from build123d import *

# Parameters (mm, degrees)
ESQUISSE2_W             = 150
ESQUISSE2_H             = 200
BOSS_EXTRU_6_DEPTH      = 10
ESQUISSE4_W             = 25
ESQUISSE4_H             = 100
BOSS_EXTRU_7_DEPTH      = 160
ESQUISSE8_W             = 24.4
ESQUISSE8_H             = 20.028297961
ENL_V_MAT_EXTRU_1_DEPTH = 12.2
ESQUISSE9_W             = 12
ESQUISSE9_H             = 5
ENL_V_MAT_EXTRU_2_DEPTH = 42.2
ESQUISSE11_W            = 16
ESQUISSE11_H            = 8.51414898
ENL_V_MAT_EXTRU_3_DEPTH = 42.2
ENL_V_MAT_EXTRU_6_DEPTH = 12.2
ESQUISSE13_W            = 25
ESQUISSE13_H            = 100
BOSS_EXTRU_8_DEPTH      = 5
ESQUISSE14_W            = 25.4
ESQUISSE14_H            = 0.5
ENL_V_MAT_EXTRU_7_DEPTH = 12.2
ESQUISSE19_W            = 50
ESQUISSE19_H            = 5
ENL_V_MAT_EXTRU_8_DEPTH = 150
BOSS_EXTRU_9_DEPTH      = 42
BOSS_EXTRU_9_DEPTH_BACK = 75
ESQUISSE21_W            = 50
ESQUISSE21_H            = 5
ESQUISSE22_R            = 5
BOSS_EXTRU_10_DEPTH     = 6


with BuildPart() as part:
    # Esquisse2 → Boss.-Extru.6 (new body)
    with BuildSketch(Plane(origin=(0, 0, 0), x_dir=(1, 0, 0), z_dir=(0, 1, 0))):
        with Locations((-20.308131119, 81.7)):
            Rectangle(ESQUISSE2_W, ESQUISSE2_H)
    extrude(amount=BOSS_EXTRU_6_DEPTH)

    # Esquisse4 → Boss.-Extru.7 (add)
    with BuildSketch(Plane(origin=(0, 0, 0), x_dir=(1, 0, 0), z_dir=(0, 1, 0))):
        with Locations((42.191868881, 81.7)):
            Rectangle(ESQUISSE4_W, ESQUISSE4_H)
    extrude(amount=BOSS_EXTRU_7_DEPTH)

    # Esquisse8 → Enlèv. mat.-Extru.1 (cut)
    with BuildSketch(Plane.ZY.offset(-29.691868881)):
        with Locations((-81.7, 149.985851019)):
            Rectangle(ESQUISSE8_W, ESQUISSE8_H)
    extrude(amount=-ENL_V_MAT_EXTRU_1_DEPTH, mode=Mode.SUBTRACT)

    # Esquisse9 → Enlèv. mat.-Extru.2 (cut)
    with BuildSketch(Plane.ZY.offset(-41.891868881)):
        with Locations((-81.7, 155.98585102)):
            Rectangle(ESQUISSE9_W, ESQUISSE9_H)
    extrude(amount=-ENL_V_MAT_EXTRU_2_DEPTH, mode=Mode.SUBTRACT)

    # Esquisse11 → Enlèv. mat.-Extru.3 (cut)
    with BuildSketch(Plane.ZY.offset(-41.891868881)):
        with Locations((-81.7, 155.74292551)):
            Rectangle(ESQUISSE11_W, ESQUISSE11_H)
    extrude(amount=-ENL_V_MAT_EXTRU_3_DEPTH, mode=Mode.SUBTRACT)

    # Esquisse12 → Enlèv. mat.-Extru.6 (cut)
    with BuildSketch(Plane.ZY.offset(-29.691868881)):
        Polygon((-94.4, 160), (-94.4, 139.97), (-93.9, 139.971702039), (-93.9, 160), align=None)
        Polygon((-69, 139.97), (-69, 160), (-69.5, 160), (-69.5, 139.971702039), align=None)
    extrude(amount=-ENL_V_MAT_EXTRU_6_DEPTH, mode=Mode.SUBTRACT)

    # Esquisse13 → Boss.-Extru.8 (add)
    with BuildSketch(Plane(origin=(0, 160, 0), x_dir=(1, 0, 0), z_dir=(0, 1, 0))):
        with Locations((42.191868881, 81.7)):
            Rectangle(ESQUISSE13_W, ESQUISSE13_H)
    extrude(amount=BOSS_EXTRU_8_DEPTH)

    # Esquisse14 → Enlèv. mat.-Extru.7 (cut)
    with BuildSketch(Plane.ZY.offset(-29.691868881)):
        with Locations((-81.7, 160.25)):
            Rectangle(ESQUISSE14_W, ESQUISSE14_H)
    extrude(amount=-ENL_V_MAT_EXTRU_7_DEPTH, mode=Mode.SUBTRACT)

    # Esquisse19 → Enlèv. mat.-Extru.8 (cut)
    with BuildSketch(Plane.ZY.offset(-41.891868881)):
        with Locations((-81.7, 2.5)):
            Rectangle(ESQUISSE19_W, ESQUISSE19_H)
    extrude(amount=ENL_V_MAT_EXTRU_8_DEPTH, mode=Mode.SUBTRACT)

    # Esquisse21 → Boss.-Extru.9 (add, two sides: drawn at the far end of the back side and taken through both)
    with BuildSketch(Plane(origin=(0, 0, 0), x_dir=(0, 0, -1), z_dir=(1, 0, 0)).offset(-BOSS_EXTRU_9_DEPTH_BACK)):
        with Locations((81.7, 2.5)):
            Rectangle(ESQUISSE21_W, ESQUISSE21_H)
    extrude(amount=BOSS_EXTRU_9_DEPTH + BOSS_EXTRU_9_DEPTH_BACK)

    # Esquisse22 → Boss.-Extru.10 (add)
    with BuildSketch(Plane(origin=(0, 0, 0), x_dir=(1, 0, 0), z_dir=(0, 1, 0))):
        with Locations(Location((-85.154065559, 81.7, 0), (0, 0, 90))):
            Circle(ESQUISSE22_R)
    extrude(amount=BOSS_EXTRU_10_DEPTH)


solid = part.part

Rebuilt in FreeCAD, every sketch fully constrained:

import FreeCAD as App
import Part
import Sketcher
Q = App.Units.Quantity

doc = App.newDocument("Part")
body = doc.addObject("PartDesign::Body", "Body")

sketch1 = body.newObject("Sketcher::SketchObject", "Sketch")
sketch1.AttachmentSupport = (doc.getObject("XZ_Plane"), [""])
sketch1.MapMode = "FlatFace"
sketch1.addGeometry(Part.LineSegment(App.Vector(-95, -182, 0), App.Vector(-95, 18, 0)), False)
sketch1.addGeometry(Part.LineSegment(App.Vector(-95, 18, 0), App.Vector(55, 18, 0)), False)
sketch1.addGeometry(Part.LineSegment(App.Vector(55, 18, 0), App.Vector(55, -182, 0)), False)
sketch1.addGeometry(Part.LineSegment(App.Vector(55, -182, 0), App.Vector(-95, -182, 0)), False)
sketch1.addConstraint(Sketcher.Constraint("Coincident", 0, 2, 1, 1))
sketch1.addConstraint(Sketcher.Constraint("Coincident", 1, 2, 2, 1))
sketch1.addConstraint(Sketcher.Constraint("Coincident", 2, 2, 3, 1))
sketch1.addConstraint(Sketcher.Constraint("Coincident", 3, 2, 0, 1))
sketch1.addConstraint(Sketcher.Constraint("Vertical", 0))
sketch1.addConstraint(Sketcher.Constraint("Horizontal", 1))
sketch1.addConstraint(Sketcher.Constraint("Vertical", 2))
sketch1.addConstraint(Sketcher.Constraint("Horizontal", 3))
sketch1.addConstraint(Sketcher.Constraint("DistanceX", 1, 1, 1, 2, Q("150 mm")))
sketch1.addConstraint(Sketcher.Constraint("DistanceY", 0, 1, 0, 2, Q("200 mm")))
sketch1.addConstraint(Sketcher.Constraint("DistanceY", -1, 1, 0, 2, Q("18.3 mm")))
sketch1.addConstraint(Sketcher.Constraint("DistanceX", 0, 2, -1, 1, Q("95.308131 mm")))
pad1 = body.newObject("PartDesign::Pad", "Pad")
pad1.Profile = sketch1
pad1.Length = 10
pad1.Reversed = True

sketch2 = body.newObject("Sketcher::SketchObject", "Sketch001")
sketch2.AttachmentSupport = (doc.getObject("XZ_Plane"), [""])
sketch2.MapMode = "FlatFace"
sketch2.addGeometry(Part.LineSegment(App.Vector(30, -132, 0), App.Vector(30, -32, 0)), False)
sketch2.addGeometry(Part.LineSegment(App.Vector(30, -32, 0), App.Vector(55, -32, 0)), False)
sketch2.addGeometry(Part.LineSegment(App.Vector(55, -32, 0), App.Vector(55, -132, 0)), False)
sketch2.addGeometry(Part.LineSegment(App.Vector(55, -132, 0), App.Vector(30, -132, 0)), False)
sketch2.addConstraint(Sketcher.Constraint("Coincident", 0, 2, 1, 1))
sketch2.addConstraint(Sketcher.Constraint("Coincident", 1, 2, 2, 1))
sketch2.addConstraint(Sketcher.Constraint("Coincident", 2, 2, 3, 1))
sketch2.addConstraint(Sketcher.Constraint("Coincident", 3, 2, 0, 1))
sketch2.addConstraint(Sketcher.Constraint("Vertical", 0))
sketch2.addConstraint(Sketcher.Constraint("Horizontal", 1))
sketch2.addConstraint(Sketcher.Constraint("Vertical", 2))
sketch2.addConstraint(Sketcher.Constraint("Horizontal", 3))
sketch2.addConstraint(Sketcher.Constraint("DistanceX", 1, 1, 1, 2, Q("25 mm")))
sketch2.addConstraint(Sketcher.Constraint("DistanceY", 0, 1, 0, 2, Q("100 mm")))
sketch2.addConstraint(Sketcher.Constraint("DistanceY", 0, 2, -1, 1, Q("31.7 mm")))
sketch2.addConstraint(Sketcher.Constraint("DistanceX", -1, 1, 0, 2, Q("29.691869 mm")))
pad2 = body.newObject("PartDesign::Pad", "Pad001")
pad2.Profile = sketch2
pad2.Length = 160
pad2.Reversed = True

sketch3 = body.newObject("Sketcher::SketchObject", "Sketch002")
sketch3.AttachmentSupport = (doc.getObject("YZ_Plane"), [""])
sketch3.MapMode = "FlatFace"
sketch3.AttachmentOffset = App.Placement(App.Vector(0, 0, 29.691869), App.Rotation())
sketch3.addGeometry(Part.LineSegment(App.Vector(160, -94, 0), App.Vector(140, -94, 0)), False)
sketch3.addGeometry(Part.LineSegment(App.Vector(140, -94, 0), App.Vector(140, -70, 0)), False)
sketch3.addGeometry(Part.LineSegment(App.Vector(140, -70, 0), App.Vector(160, -70, 0)), False)
sketch3.addGeometry(Part.LineSegment(App.Vector(160, -70, 0), App.Vector(160, -94, 0)), False)
sketch3.addConstraint(Sketcher.Constraint("Coincident", 0, 2, 1, 1))
sketch3.addConstraint(Sketcher.Constraint("Coincident", 1, 2, 2, 1))
sketch3.addConstraint(Sketcher.Constraint("Coincident", 2, 2, 3, 1))
sketch3.addConstraint(Sketcher.Constraint("Coincident", 3, 2, 0, 1))
sketch3.addConstraint(Sketcher.Constraint("Horizontal", 0))
sketch3.addConstraint(Sketcher.Constraint("Vertical", 1))
sketch3.addConstraint(Sketcher.Constraint("Horizontal", 2))
sketch3.addConstraint(Sketcher.Constraint("Vertical", 3))
sketch3.addConstraint(Sketcher.Constraint("DistanceY", 1, 1, 1, 2, Q("24.4 mm")))
sketch3.addConstraint(Sketcher.Constraint("DistanceX", -1, 1, 2, 2, Q("160 mm")))
sketch3.addConstraint(Sketcher.Constraint("DistanceY", 0, 2, -1, 1, Q("93.9 mm")))
sketch3.addConstraint(Sketcher.Constraint("DistanceX", 0, 2, 0, 1, Q("20.028298 mm")))
pocket1 = body.newObject("PartDesign::Pocket", "Pocket")
pocket1.Profile = sketch3
pocket1.Length = 12.2
pocket1.Reversed = True

sketch4 = body.newObject("Sketcher::SketchObject", "Sketch003")
sketch4.AttachmentSupport = (doc.getObject("YZ_Plane"), [""])
sketch4.MapMode = "FlatFace"
sketch4.AttachmentOffset = App.Placement(App.Vector(0, 0, 41.891869), App.Rotation())
sketch4.addGeometry(Part.LineSegment(App.Vector(158, -88, 0), App.Vector(153, -88, 0)), False)
sketch4.addGeometry(Part.LineSegment(App.Vector(153, -88, 0), App.Vector(153, -76, 0)), False)
sketch4.addGeometry(Part.LineSegment(App.Vector(153, -76, 0), App.Vector(158, -76, 0)), False)
sketch4.addGeometry(Part.LineSegment(App.Vector(158, -76, 0), App.Vector(158, -88, 0)), False)
sketch4.addConstraint(Sketcher.Constraint("Coincident", 0, 2, 1, 1))
sketch4.addConstraint(Sketcher.Constraint("Coincident", 1, 2, 2, 1))
sketch4.addConstraint(Sketcher.Constraint("Coincident", 2, 2, 3, 1))
sketch4.addConstraint(Sketcher.Constraint("Coincident", 3, 2, 0, 1))
sketch4.addConstraint(Sketcher.Constraint("Horizontal", 0))
sketch4.addConstraint(Sketcher.Constraint("Vertical", 1))
sketch4.addConstraint(Sketcher.Constraint("Horizontal", 2))
sketch4.addConstraint(Sketcher.Constraint("Vertical", 3))
sketch4.addConstraint(Sketcher.Constraint("DistanceX", 0, 2, 0, 1, Q("5 mm")))
sketch4.addConstraint(Sketcher.Constraint("DistanceY", 1, 1, 1, 2, Q("12 mm")))
sketch4.addConstraint(Sketcher.Constraint("DistanceY", 0, 2, -1, 1, Q("87.7 mm")))
sketch4.addConstraint(Sketcher.Constraint("DistanceX", -1, 1, 0, 2, Q("153.485851 mm")))
pocket2 = body.newObject("PartDesign::Pocket", "Pocket001")
pocket2.Profile = sketch4
pocket2.Length = 42.2
pocket2.Reversed = True

sketch5 = body.newObject("Sketcher::SketchObject", "Sketch004")
sketch5.AttachmentSupport = (doc.getObject("YZ_Plane"), [""])
sketch5.MapMode = "FlatFace"
sketch5.AttachmentOffset = App.Placement(App.Vector(0, 0, 41.891869), App.Rotation())
sketch5.addGeometry(Part.LineSegment(App.Vector(160, -90, 0), App.Vector(151, -90, 0)), False)
sketch5.addGeometry(Part.LineSegment(App.Vector(151, -90, 0), App.Vector(151, -74, 0)), False)
sketch5.addGeometry(Part.LineSegment(App.Vector(151, -74, 0), App.Vector(160, -74, 0)), False)
sketch5.addGeometry(Part.LineSegment(App.Vector(160, -74, 0), App.Vector(160, -90, 0)), False)
sketch5.addConstraint(Sketcher.Constraint("Coincident", 0, 2, 1, 1))
sketch5.addConstraint(Sketcher.Constraint("Coincident", 1, 2, 2, 1))
sketch5.addConstraint(Sketcher.Constraint("Coincident", 2, 2, 3, 1))
sketch5.addConstraint(Sketcher.Constraint("Coincident", 3, 2, 0, 1))
sketch5.addConstraint(Sketcher.Constraint("Horizontal", 0))
sketch5.addConstraint(Sketcher.Constraint("Vertical", 1))
sketch5.addConstraint(Sketcher.Constraint("Horizontal", 2))
sketch5.addConstraint(Sketcher.Constraint("Vertical", 3))
sketch5.addConstraint(Sketcher.Constraint("DistanceY", 1, 1, 1, 2, Q("16 mm")))
sketch5.addConstraint(Sketcher.Constraint("DistanceX", -1, 1, 2, 2, Q("160 mm")))
sketch5.addConstraint(Sketcher.Constraint("DistanceY", 0, 2, -1, 1, Q("89.7 mm")))
sketch5.addConstraint(Sketcher.Constraint("DistanceX", 0, 2, 0, 1, Q("8.514149 mm")))
pocket3 = body.newObject("PartDesign::Pocket", "Pocket002")
pocket3.Profile = sketch5
pocket3.Length = 42.2
pocket3.Reversed = True

sketch6 = body.newObject("Sketcher::SketchObject", "Sketch005")
sketch6.AttachmentSupport = (doc.getObject("YZ_Plane"), [""])
sketch6.MapMode = "FlatFace"
sketch6.AttachmentOffset = App.Placement(App.Vector(0, 0, 29.691869), App.Rotation())
sketch6.addGeometry(Part.LineSegment(App.Vector(160, -94.4, 0), App.Vector(140, -94.4, 0)), False)
sketch6.addGeometry(Part.LineSegment(App.Vector(140, -94.4, 0), App.Vector(140, -93.9, 0)), False)
sketch6.addGeometry(Part.LineSegment(App.Vector(140, -93.9, 0), App.Vector(160, -93.9, 0)), False)
sketch6.addGeometry(Part.LineSegment(App.Vector(160, -93.9, 0), App.Vector(160, -94.4, 0)), False)
sketch6.addGeometry(Part.LineSegment(App.Vector(140, -69, 0), App.Vector(160, -69, 0)), False)
sketch6.addGeometry(Part.LineSegment(App.Vector(160, -69, 0), App.Vector(160, -69.5, 0)), False)
sketch6.addGeometry(Part.LineSegment(App.Vector(160, -69.5, 0), App.Vector(140, -69.5, 0)), False)
sketch6.addGeometry(Part.LineSegment(App.Vector(140, -69.5, 0), App.Vector(140, -69, 0)), False)
sketch6.addConstraint(Sketcher.Constraint("Coincident", 0, 2, 1, 1))
sketch6.addConstraint(Sketcher.Constraint("Coincident", 1, 2, 2, 1))
sketch6.addConstraint(Sketcher.Constraint("Coincident", 2, 2, 3, 1))
sketch6.addConstraint(Sketcher.Constraint("Coincident", 3, 2, 0, 1))
sketch6.addConstraint(Sketcher.Constraint("Coincident", 4, 2, 5, 1))
sketch6.addConstraint(Sketcher.Constraint("Coincident", 5, 2, 6, 1))
sketch6.addConstraint(Sketcher.Constraint("Coincident", 6, 2, 7, 1))
sketch6.addConstraint(Sketcher.Constraint("Coincident", 7, 2, 4, 1))
sketch6.addConstraint(Sketcher.Constraint("Horizontal", 0))
sketch6.addConstraint(Sketcher.Constraint("Horizontal", 2))
sketch6.addConstraint(Sketcher.Constraint("Vertical", 3))
sketch6.addConstraint(Sketcher.Constraint("Horizontal", 4))
sketch6.addConstraint(Sketcher.Constraint("Vertical", 5))
sketch6.addConstraint(Sketcher.Constraint("Horizontal", 6))
sketch6.addConstraint(Sketcher.Constraint("Vertical", 3, 2, 4, 2))
sketch6.addConstraint(Sketcher.Constraint("Vertical", 1, 2, 6, 2))
sketch6.addConstraint(Sketcher.Constraint("Vertical", 0, 2, 7, 2))
sketch6.addConstraint(Sketcher.Constraint("Equal", 3, 5))
sketch6.addConstraint(Sketcher.Constraint("DistanceY", 3, 2, 3, 1, Q("0.5 mm")))
sketch6.addConstraint(Sketcher.Constraint("DistanceX", -1, 1, 2, 2, Q("160 mm")))
sketch6.addConstraint(Sketcher.Constraint("DistanceY", 4, 2, -1, 1, Q("69 mm")))
sketch6.addConstraint(Sketcher.Constraint("DistanceX", 0, 2, 0, 1, Q("20.03 mm")))
sketch6.addConstraint(Sketcher.Constraint("DistanceY", 0, 2, -1, 1, Q("94.4 mm")))
sketch6.addConstraint(Sketcher.Constraint("DistanceX", 2, 1, 2, 2, Q("20.028298 mm")))
pocket4 = body.newObject("PartDesign::Pocket", "Pocket003")
pocket4.Profile = sketch6
pocket4.Length = 12.2
pocket4.Reversed = True

sketch7 = body.newObject("Sketcher::SketchObject", "Sketch006")
sketch7.AttachmentSupport = (doc.getObject("XZ_Plane"), [""])
sketch7.MapMode = "FlatFace"
sketch7.AttachmentOffset = App.Placement(App.Vector(0, 0, -160), App.Rotation())
sketch7.addGeometry(Part.LineSegment(App.Vector(30, -132, 0), App.Vector(30, -32, 0)), False)
sketch7.addGeometry(Part.LineSegment(App.Vector(30, -32, 0), App.Vector(55, -32, 0)), False)
sketch7.addGeometry(Part.LineSegment(App.Vector(55, -32, 0), App.Vector(55, -132, 0)), False)
sketch7.addGeometry(Part.LineSegment(App.Vector(55, -132, 0), App.Vector(30, -132, 0)), False)
sketch7.addConstraint(Sketcher.Constraint("Coincident", 0, 2, 1, 1))
sketch7.addConstraint(Sketcher.Constraint("Coincident", 1, 2, 2, 1))
sketch7.addConstraint(Sketcher.Constraint("Coincident", 2, 2, 3, 1))
sketch7.addConstraint(Sketcher.Constraint("Coincident", 3, 2, 0, 1))
sketch7.addConstraint(Sketcher.Constraint("Vertical", 0))
sketch7.addConstraint(Sketcher.Constraint("Horizontal", 1))
sketch7.addConstraint(Sketcher.Constraint("Vertical", 2))
sketch7.addConstraint(Sketcher.Constraint("Horizontal", 3))
sketch7.addConstraint(Sketcher.Constraint("DistanceX", 1, 1, 1, 2, Q("25 mm")))
sketch7.addConstraint(Sketcher.Constraint("DistanceY", 0, 1, 0, 2, Q("100 mm")))
sketch7.addConstraint(Sketcher.Constraint("DistanceY", 0, 2, -1, 1, Q("31.7 mm")))
sketch7.addConstraint(Sketcher.Constraint("DistanceX", -1, 1, 0, 2, Q("29.691869 mm")))
pad3 = body.newObject("PartDesign::Pad", "Pad002")
pad3.Profile = sketch7
pad3.Length = 5
pad3.Reversed = True

sketch8 = body.newObject("Sketcher::SketchObject", "Sketch007")
sketch8.AttachmentSupport = (doc.getObject("YZ_Plane"), [""])
sketch8.MapMode = "FlatFace"
sketch8.AttachmentOffset = App.Placement(App.Vector(0, 0, 29.691869), App.Rotation())
sketch8.addGeometry(Part.LineSegment(App.Vector(160.5, -94.4, 0), App.Vector(160, -94.4, 0)), False)
sketch8.addGeometry(Part.LineSegment(App.Vector(160, -94.4, 0), App.Vector(160, -69, 0)), False)
sketch8.addGeometry(Part.LineSegment(App.Vector(160, -69, 0), App.Vector(160.5, -69, 0)), False)
sketch8.addGeometry(Part.LineSegment(App.Vector(160.5, -69, 0), App.Vector(160.5, -94.4, 0)), False)
sketch8.addConstraint(Sketcher.Constraint("Coincident", 0, 2, 1, 1))
sketch8.addConstraint(Sketcher.Constraint("Coincident", 1, 2, 2, 1))
sketch8.addConstraint(Sketcher.Constraint("Coincident", 2, 2, 3, 1))
sketch8.addConstraint(Sketcher.Constraint("Coincident", 3, 2, 0, 1))
sketch8.addConstraint(Sketcher.Constraint("Horizontal", 0))
sketch8.addConstraint(Sketcher.Constraint("Vertical", 1))
sketch8.addConstraint(Sketcher.Constraint("Horizontal", 2))
sketch8.addConstraint(Sketcher.Constraint("Vertical", 3))
sketch8.addConstraint(Sketcher.Constraint("DistanceX", 0, 2, 0, 1, Q("0.5 mm")))
sketch8.addConstraint(Sketcher.Constraint("DistanceY", 1, 1, 1, 2, Q("25.4 mm")))
sketch8.addConstraint(Sketcher.Constraint("DistanceX", -1, 1, 0, 2, Q("160 mm")))
sketch8.addConstraint(Sketcher.Constraint("DistanceY", 1, 2, -1, 1, Q("69 mm")))
pocket5 = body.newObject("PartDesign::Pocket", "Pocket004")
pocket5.Profile = sketch8
pocket5.Length = 12.2
pocket5.Reversed = True

sketch9 = body.newObject("Sketcher::SketchObject", "Sketch008")
sketch9.AttachmentSupport = (doc.getObject("YZ_Plane"), [""])
sketch9.MapMode = "FlatFace"
sketch9.AttachmentOffset = App.Placement(App.Vector(0, 0, 41.891869), App.Rotation())
sketch9.addGeometry(Part.LineSegment(App.Vector(5, -107, 0), App.Vector(0, -107, 0)), False)
sketch9.addGeometry(Part.LineSegment(App.Vector(0, -107, 0), App.Vector(0, -57, 0)), False)
sketch9.addGeometry(Part.LineSegment(App.Vector(0, -57, 0), App.Vector(5, -57, 0)), False)
sketch9.addGeometry(Part.LineSegment(App.Vector(5, -57, 0), App.Vector(5, -107, 0)), False)
sketch9.addConstraint(Sketcher.Constraint("Coincident", 0, 2, 1, 1))
sketch9.addConstraint(Sketcher.Constraint("Coincident", 1, 2, 2, 1))
sketch9.addConstraint(Sketcher.Constraint("Coincident", 2, 2, 3, 1))
sketch9.addConstraint(Sketcher.Constraint("Coincident", 3, 2, 0, 1))
sketch9.addConstraint(Sketcher.Constraint("Horizontal", 0))
sketch9.addConstraint(Sketcher.Constraint("Vertical", 1))
sketch9.addConstraint(Sketcher.Constraint("Horizontal", 2))
sketch9.addConstraint(Sketcher.Constraint("Vertical", 3))
sketch9.addConstraint(Sketcher.Constraint("PointOnObject", 0, 2, -2))
sketch9.addConstraint(Sketcher.Constraint("DistanceX", 0, 2, 0, 1, Q("5 mm")))
sketch9.addConstraint(Sketcher.Constraint("DistanceY", 1, 1, 1, 2, Q("50 mm")))
sketch9.addConstraint(Sketcher.Constraint("DistanceY", 0, 2, -1, 1, Q("106.7 mm")))
pocket6 = body.newObject("PartDesign::Pocket", "Pocket005")
pocket6.Profile = sketch9
pocket6.Length = 150

sketch10 = body.newObject("Sketcher::SketchObject", "Sketch009")
sketch10.AttachmentSupport = (doc.getObject("YZ_Plane"), [""])
sketch10.MapMode = "FlatFace"
sketch10.addGeometry(Part.LineSegment(App.Vector(5, -57, 0), App.Vector(0, -57, 0)), False)
sketch10.addGeometry(Part.LineSegment(App.Vector(0, -57, 0), App.Vector(0, -107, 0)), False)
sketch10.addGeometry(Part.LineSegment(App.Vector(0, -107, 0), App.Vector(5, -107, 0)), False)
sketch10.addGeometry(Part.LineSegment(App.Vector(5, -107, 0), App.Vector(5, -57, 0)), False)
sketch10.addConstraint(Sketcher.Constraint("Coincident", 0, 2, 1, 1))
sketch10.addConstraint(Sketcher.Constraint("Coincident", 1, 2, 2, 1))
sketch10.addConstraint(Sketcher.Constraint("Coincident", 2, 2, 3, 1))
sketch10.addConstraint(Sketcher.Constraint("Coincident", 3, 2, 0, 1))
sketch10.addConstraint(Sketcher.Constraint("Horizontal", 0))
sketch10.addConstraint(Sketcher.Constraint("Vertical", 1))
sketch10.addConstraint(Sketcher.Constraint("Horizontal", 2))
sketch10.addConstraint(Sketcher.Constraint("Vertical", 3))
sketch10.addConstraint(Sketcher.Constraint("PointOnObject", 0, 2, -2))
sketch10.addConstraint(Sketcher.Constraint("DistanceX", 0, 2, 0, 1, Q("5 mm")))
sketch10.addConstraint(Sketcher.Constraint("DistanceY", 1, 2, 1, 1, Q("50 mm")))
sketch10.addConstraint(Sketcher.Constraint("DistanceY", 0, 2, -1, 1, Q("56.7 mm")))
pad4 = body.newObject("PartDesign::Pad", "Pad003")
pad4.Profile = sketch10
pad4.Type = "TwoLengths"
pad4.Length = 42
pad4.Length2 = 75

sketch11 = body.newObject("Sketcher::SketchObject", "Sketch010")
sketch11.AttachmentSupport = (doc.getObject("XZ_Plane"), [""])
sketch11.MapMode = "FlatFace"
sketch11.addGeometry(Part.Circle(App.Vector(-85, -82, 0), App.Vector(0, 0, 1), 5), False)
sketch11.addConstraint(Sketcher.Constraint("Diameter", 0, Q("10 mm")))
sketch11.addConstraint(Sketcher.Constraint("DistanceY", 0, 3, -1, 1, Q("81.7 mm")))
sketch11.addConstraint(Sketcher.Constraint("DistanceX", 0, 3, -1, 1, Q("85.154066 mm")))
pad5 = body.newObject("PartDesign::Pad", "Pad004")
pad5.Profile = sketch11
pad5.Length = 6
pad5.Reversed = True

doc.recompute()
